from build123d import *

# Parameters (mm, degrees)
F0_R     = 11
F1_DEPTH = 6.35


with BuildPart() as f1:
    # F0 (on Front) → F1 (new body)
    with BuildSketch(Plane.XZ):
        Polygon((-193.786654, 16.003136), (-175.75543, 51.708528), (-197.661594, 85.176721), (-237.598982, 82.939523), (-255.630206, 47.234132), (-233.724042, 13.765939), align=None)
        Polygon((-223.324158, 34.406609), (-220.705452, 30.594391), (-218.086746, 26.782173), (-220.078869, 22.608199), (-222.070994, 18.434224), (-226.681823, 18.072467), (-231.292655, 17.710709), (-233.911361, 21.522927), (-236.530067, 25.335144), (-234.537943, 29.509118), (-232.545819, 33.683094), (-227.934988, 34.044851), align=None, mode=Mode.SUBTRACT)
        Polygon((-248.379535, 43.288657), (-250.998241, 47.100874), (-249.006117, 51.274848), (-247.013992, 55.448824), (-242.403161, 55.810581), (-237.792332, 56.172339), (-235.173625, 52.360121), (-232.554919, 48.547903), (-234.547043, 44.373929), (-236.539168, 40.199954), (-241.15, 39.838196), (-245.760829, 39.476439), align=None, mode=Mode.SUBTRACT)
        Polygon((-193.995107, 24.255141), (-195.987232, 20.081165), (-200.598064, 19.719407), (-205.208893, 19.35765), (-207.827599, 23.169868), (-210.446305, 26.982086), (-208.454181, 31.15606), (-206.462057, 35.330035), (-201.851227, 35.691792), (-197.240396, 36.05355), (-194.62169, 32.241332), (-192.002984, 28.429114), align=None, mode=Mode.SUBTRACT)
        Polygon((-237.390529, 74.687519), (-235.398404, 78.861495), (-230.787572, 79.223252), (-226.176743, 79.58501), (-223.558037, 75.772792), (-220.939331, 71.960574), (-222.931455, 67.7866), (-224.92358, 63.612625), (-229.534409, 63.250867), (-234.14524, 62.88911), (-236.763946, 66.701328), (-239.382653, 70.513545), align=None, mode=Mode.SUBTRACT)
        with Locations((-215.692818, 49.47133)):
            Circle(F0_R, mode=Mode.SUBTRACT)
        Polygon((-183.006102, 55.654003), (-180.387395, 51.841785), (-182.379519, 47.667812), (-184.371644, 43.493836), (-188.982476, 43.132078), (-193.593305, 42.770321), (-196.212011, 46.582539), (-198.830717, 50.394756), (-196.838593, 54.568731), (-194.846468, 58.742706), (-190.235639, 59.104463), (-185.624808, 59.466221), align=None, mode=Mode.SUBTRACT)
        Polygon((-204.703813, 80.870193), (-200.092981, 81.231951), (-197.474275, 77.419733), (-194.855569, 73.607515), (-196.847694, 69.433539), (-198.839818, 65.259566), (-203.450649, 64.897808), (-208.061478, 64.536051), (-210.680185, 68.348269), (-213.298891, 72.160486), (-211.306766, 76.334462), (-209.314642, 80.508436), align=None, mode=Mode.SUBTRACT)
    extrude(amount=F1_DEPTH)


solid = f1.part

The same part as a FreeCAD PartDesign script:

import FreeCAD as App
import Part
import Sketcher

V = App.Vector
Q = App.Units.Quantity


def add_polygon(sketch, points):
    """Adds a closed chain of lines whose ends are joined by coincident constraints."""
    first, n = sketch.GeometryCount, len(points)
    for a, b in zip(points, points[1:] + points[:1]):
        sketch.addGeometry(Part.LineSegment(App.Vector(*a, 0), App.Vector(*b, 0)), False)
    for i in range(n):
        sketch.addConstraint(Sketcher.Constraint("Coincident", first + i, 2, first + (i + 1) % n, 1))

doc = App.newDocument("Part")
params = doc.addObject("Spreadsheet::Sheet", "Params")
for row, (alias, value) in enumerate([
    ("sketch1_diameter", "22 mm"),
    ("sketch1_length", "40.000001 mm"),
    ("sketch1_length2", "9.25 mm"),
    ("pad1_length", "6.35 mm"),
], start=1):
    params.set(f"A{row}", alias)
    params.set(f"B{row}", "=" + value)
    params.setAlias(f"B{row}", alias)

body = doc.addObject("PartDesign::Body", "Body")

# Sketch on XZ plane
sketch1 = body.newObject("Sketcher::SketchObject", "Sketch")
sketch1.AttachmentSupport = (doc.getObject("XZ_Plane"), [""])
sketch1.MapMode = "FlatFace"
add_polygon(sketch1, [(-193.8, 16), (-175.8, 51.7), (-197.7, 85.2), (-237.6, 82.9), (-255.6, 47.2), (-233.7, 13.8)])  # lines 0-5
add_polygon(sketch1, [(-227.9, 34), (-223.3, 34.4), (-218.1, 26.8), (-220.1, 22.6), (-222.1, 18.4), (-226.7, 18.1), (-231.3, 17.7), (-233.9, 21.5), (-236.5, 25.3), (-234.5, 29.5), (-232.5, 33.7)])  # lines 6-16
add_polygon(sketch1, [(-245.8, 39.5), (-248.4, 43.3), (-251, 47.1), (-249, 51.3), (-247, 55.4), (-242.4, 55.8), (-237.8, 56.2), (-235.2, 52.4), (-232.6, 48.5), (-234.5, 44.4), (-236.5, 40.2), (-241.2, 39.8)])  # lines 17-28
add_polygon(sketch1, [(-192, 28.4), (-194, 24.3), (-196, 20.1), (-200.6, 19.7), (-205.2, 19.4), (-210.4, 27), (-208.5, 31.2), (-206.5, 35.3), (-201.9, 35.7), (-197.2, 36.1)])  # lines 29-38
add_polygon(sketch1, [(-239.4, 70.5), (-237.4, 74.7), (-235.4, 78.9), (-230.8, 79.2), (-226.2, 79.6), (-220.9, 72), (-222.9, 67.8), (-224.9, 63.6), (-229.5, 63.3), (-234.1, 62.9), (-236.8, 66.7)])  # lines 39-49
sketch1.addGeometry(Part.Circle(V(-215.7, 49.5, 0), V(0, 0, 1), 11), False)  # 50
add_polygon(sketch1, [(-185.6, 59.5), (-183, 55.7), (-180.4, 51.8), (-182.4, 47.7), (-184.4, 43.5), (-189, 43.1), (-193.6, 42.8), (-196.2, 46.6), (-198.8, 50.4), (-196.8, 54.6), (-194.8, 58.7), (-190.2, 59.1)])  # lines 51-62
add_polygon(sketch1, [(-209.3, 80.5), (-204.7, 80.9), (-200.1, 81.2), (-194.9, 73.6), (-196.8, 69.4), (-198.8, 65.3), (-203.5, 64.9), (-208.1, 64.5), (-210.7, 68.3), (-213.3, 72.2), (-211.3, 76.3)])  # lines 63-73
sketch1.addConstraint(Sketcher.Constraint("Parallel", 0, 3))
sketch1.addConstraint(Sketcher.Constraint("Parallel", 1, 4))
sketch1.addConstraint(Sketcher.Constraint("Parallel", 2, 5))
sketch1.addConstraint(Sketcher.Constraint("Parallel", 8, 9))
sketch1.addConstraint(Sketcher.Constraint("Parallel", 6, 10))
sketch1.addConstraint(Sketcher.Constraint("Parallel", 10, 11))
sketch1.addConstraint(Sketcher.Constraint("Parallel", 7, 12))
sketch1.addConstraint(Sketcher.Constraint("Parallel", 12, 13))
sketch1.addConstraint(Sketcher.Constraint("Parallel", 9, 14))
sketch1.addConstraint(Sketcher.Constraint("Parallel", 14, 15))
sketch1.addConstraint(Sketcher.Constraint("Parallel", 11, 16))
sketch1.addConstraint(Sketcher.Constraint("Parallel", 13, 17))
sketch1.addConstraint(Sketcher.Constraint("Parallel", 17, 18))
sketch1.addConstraint(Sketcher.Constraint("Parallel", 15, 19))
sketch1.addConstraint(Sketcher.Constraint("Parallel", 19, 20))
sketch1.addConstraint(Sketcher.Constraint("Parallel", 16, 21))
sketch1.addConstraint(Sketcher.Constraint("Parallel", 21, 22))
sketch1.addConstraint(Sketcher.Constraint("Parallel", 18, 23))
sketch1.addConstraint(Sketcher.Constraint("Parallel", 23, 24))
sketch1.addConstraint(Sketcher.Constraint("Parallel", 20, 25))
sketch1.addConstraint(Sketcher.Constraint("Parallel", 25, 26))
sketch1.addConstraint(Sketcher.Constraint("Parallel", 22, 27))
sketch1.addConstraint(Sketcher.Constraint("Parallel", 27, 28))
sketch1.addConstraint(Sketcher.Constraint("Parallel", 26, 29))
sketch1.addConstraint(Sketcher.Constraint("Parallel", 29, 30))
sketch1.addConstraint(Sketcher.Constraint("Parallel", 28, 31))
sketch1.addConstraint(Sketcher.Constraint("Parallel", 31, 32))
sketch1.addConstraint(Sketcher.Constraint("Parallel", 24, 33))
sketch1.addConstraint(Sketcher.Constraint("Parallel", 30, 34))
sketch1.addConstraint(Sketcher.Constraint("Parallel", 34, 35))
sketch1.addConstraint(Sketcher.Constraint("Parallel", 32, 36))
sketch1.addConstraint(Sketcher.Constraint("Parallel", 36, 37))
sketch1.addConstraint(Sketcher.Constraint("Parallel", 33, 38))
sketch1.addConstraint(Sketcher.Constraint("Parallel", 35, 39))
sketch1.addConstraint(Sketcher.Constraint("Parallel", 39, 40))
sketch1.addConstraint(Sketcher.Constraint("Parallel", 37, 41))
sketch1.addConstraint(Sketcher.Constraint("Parallel", 41, 42))
sketch1.addConstraint(Sketcher.Constraint("Parallel", 38, 43))
sketch1.addConstraint(Sketcher.Constraint("Parallel", 40, 44))
sketch1.addConstraint(Sketcher.Constraint("Parallel", 44, 45))
sketch1.addConstraint(Sketcher.Constraint("Parallel", 42, 46))
sketch1.addConstraint(Sketcher.Constraint("Parallel", 46, 47))
sketch1.addConstraint(Sketcher.Constraint("Parallel", 43, 48))
sketch1.addConstraint(Sketcher.Constraint("Parallel", 48, 49))
sketch1.addConstraint(Sketcher.Constraint("Parallel", 49, 51))
sketch1.addConstraint(Sketcher.Constraint("Parallel", 51, 52))
sketch1.addConstraint(Sketcher.Constraint("Parallel", 45, 53))
sketch1.addConstraint(Sketcher.Constraint("Parallel", 53, 54))
sketch1.addConstraint(Sketcher.Constraint("Parallel", 47, 55))
sketch1.addConstraint(Sketcher.Constraint("Parallel", 55, 56))
sketch1.addConstraint(Sketcher.Constraint("Parallel", 52, 57))
sketch1.addConstraint(Sketcher.Constraint("Parallel", 57, 58))
sketch1.addConstraint(Sketcher.Constraint("Parallel", 54, 59))
sketch1.addConstraint(Sketcher.Constraint("Parallel", 59, 60))
sketch1.addConstraint(Sketcher.Constraint("Parallel", 56, 61))
sketch1.addConstraint(Sketcher.Constraint("Parallel", 61, 62))
sketch1.addConstraint(Sketcher.Constraint("Parallel", 62, 63))
sketch1.addConstraint(Sketcher.Constraint("Parallel", 63, 64))
sketch1.addConstraint(Sketcher.Constraint("Parallel", 58, 65))
sketch1.addConstraint(Sketcher.Constraint("Parallel", 60, 66))
sketch1.addConstraint(Sketcher.Constraint("Parallel", 66, 67))
sketch1.addConstraint(Sketcher.Constraint("Parallel", 64, 68))
sketch1.addConstraint(Sketcher.Constraint("Parallel", 68, 69))
sketch1.addConstraint(Sketcher.Constraint("Parallel", 65, 70))
sketch1.addConstraint(Sketcher.Constraint("Parallel", 70, 71))
sketch1.addConstraint(Sketcher.Constraint("Parallel", 67, 72))
sketch1.addConstraint(Sketcher.Constraint("Parallel", 72, 73))
sketch1.addConstraint(Sketcher.Constraint("Equal", 0, 1))
sketch1.addConstraint(Sketcher.Constraint("Equal", 1, 2))
sketch1.addConstraint(Sketcher.Constraint("Equal", 2, 3))
sketch1.addConstraint(Sketcher.Constraint("Equal", 6, 8))
sketch1.addConstraint(Sketcher.Constraint("Equal", 8, 9))
sketch1.addConstraint(Sketcher.Constraint("Equal", 9, 10))
sketch1.addConstraint(Sketcher.Constraint("Equal", 9, 11))
sketch1.addConstraint(Sketcher.Constraint("Equal", 11, 12))
sketch1.addConstraint(Sketcher.Constraint("Equal", 12, 13))
sketch1.addConstraint(Sketcher.Constraint("Equal", 13, 14))
sketch1.addConstraint(Sketcher.Constraint("Equal", 14, 15))
sketch1.addConstraint(Sketcher.Constraint("Equal", 16, 17))
sketch1.addConstraint(Sketcher.Constraint("Equal", 17, 18))
sketch1.addConstraint(Sketcher.Constraint("Equal", 18, 19))
sketch1.addConstraint(Sketcher.Constraint("Equal", 18, 20))
sketch1.addConstraint(Sketcher.Constraint("Equal", 20, 21))
sketch1.addConstraint(Sketcher.Constraint("Equal", 21, 22))
sketch1.addConstraint(Sketcher.Constraint("Equal", 21, 23))
sketch1.addConstraint(Sketcher.Constraint("Equal", 23, 24))
sketch1.addConstraint(Sketcher.Constraint("Equal", 24, 25))
sketch1.addConstraint(Sketcher.Constraint("Equal", 26, 27))
sketch1.addConstraint(Sketcher.Constraint("Equal", 28, 29))
sketch1.addConstraint(Sketcher.Constraint("Equal", 27, 30))
sketch1.addConstraint(Sketcher.Constraint("Equal", 30, 31))
sketch1.addConstraint(Sketcher.Constraint("Equal", 29, 32))
sketch1.addConstraint(Sketcher.Constraint("Equal", 7, 33))
sketch1.addConstraint(Sketcher.Constraint("Equal", 32, 34))
sketch1.addConstraint(Sketcher.Constraint("Equal", 34, 35))
sketch1.addConstraint(Sketcher.Constraint("Equal", 35, 36))
sketch1.addConstraint(Sketcher.Constraint("Equal", 37, 39))
sketch1.addConstraint(Sketcher.Constraint("Equal", 37, 40))
sketch1.addConstraint(Sketcher.Constraint("Equal", 40, 41))
sketch1.addConstraint(Sketcher.Constraint("Equal", 39, 42))
sketch1.addConstraint(Sketcher.Constraint("Equal", 38, 43))
sketch1.addConstraint(Sketcher.Constraint("Equal", 42, 44))
sketch1.addConstraint(Sketcher.Constraint("Equal", 44, 45))
sketch1.addConstraint(Sketcher.Constraint("Equal", 45, 46))
sketch1.addConstraint(Sketcher.Constraint("Equal", 47, 48))
sketch1.addConstraint(Sketcher.Constraint("Equal", 49, 51))
sketch1.addConstraint(Sketcher.Constraint("Equal", 51, 52))
sketch1.addConstraint(Sketcher.Constraint("Equal", 49, 53))
sketch1.addConstraint(Sketcher.Constraint("Equal", 52, 54))
sketch1.addConstraint(Sketcher.Constraint("Equal", 54, 55))
sketch1.addConstraint(Sketcher.Constraint("Equal", 53, 56))
sketch1.addConstraint(Sketcher.Constraint("Equal", 56, 57))
sketch1.addConstraint(Sketcher.Constraint("Equal", 57, 58))
sketch1.addConstraint(Sketcher.Constraint("Equal", 58, 59))
sketch1.addConstraint(Sketcher.Constraint("Equal", 60, 61))
sketch1.addConstraint(Sketcher.Constraint("Equal", 61, 63))
sketch1.addConstraint(Sketcher.Constraint("Equal", 62, 64))
sketch1.addConstraint(Sketcher.Constraint("Equal", 43, 65))
sketch1.addConstraint(Sketcher.Constraint("Equal", 64, 66))
sketch1.addConstraint(Sketcher.Constraint("Equal", 63, 67))
sketch1.addConstraint(Sketcher.Constraint("Equal", 66, 68))
sketch1.addConstraint(Sketcher.Constraint("Equal", 67, 69))
sketch1.addConstraint(Sketcher.Constraint("Equal", 68, 70))
sketch1.addConstraint(Sketcher.Constraint("Equal", 71, 72))
sketch1.addConstraint(Sketcher.Constraint("Diameter", 50, Q("22 mm")))
sketch1.addConstraint(Sketcher.Constraint("Distance", 0, Q("40.000001 mm")))
sketch1.addConstraint(Sketcher.Constraint("Distance", 7, Q("9.25 mm")))
sketch1.addConstraint(Sketcher.Constraint("DistanceX", 27, 2, -1, 1, Q("241.15 mm")))
sketch1.addConstraint(Sketcher.Constraint("DistanceY", -1, 1, 8, 2, Q("22.608199 mm")))
sketch1.addConstraint(Sketcher.Constraint("DistanceY", -1, 1, 44, 2, Q("67.7866 mm")))
sketch1.addConstraint(Sketcher.Constraint("DistanceX", 51, 2, -1, 1, Q("183.006102 mm")))
sketch1.addConstraint(Sketcher.Constraint("DistanceY", -1, 1, 50, 3, Q("49.47133 mm")))
sketch1.addConstraint(Sketcher.Constraint("DistanceX", 0, 2, -1, 1, Q("175.75543 mm")))
sketch1.addConstraint(Sketcher.Constraint("DistanceY", -1, 1, 1, 2, Q("85.176721 mm")))
sketch1.addConstraint(Sketcher.Constraint("DistanceX", 2, 2, -1, 1, Q("237.598982 mm")))
sketch1.addConstraint(Sketcher.Constraint("DistanceX", 4, 2, -1, 1, Q("233.724042 mm")))
sketch1.addConstraint(Sketcher.Constraint("DistanceY", -1, 1, 4, 2, Q("13.765939 mm")))
sketch1.addConstraint(Sketcher.Constraint("DistanceX", 6, 2, -1, 1, Q("223.324158 mm")))
sketch1.addConstraint(Sketcher.Constraint("DistanceY", -1, 1, 6, 2, Q("34.406609 mm")))
sketch1.addConstraint(Sketcher.Constraint("DistanceX", 8, 2, -1, 1, Q("220.078869 mm")))
sketch1.addConstraint(Sketcher.Constraint("DistanceY", -1, 1, 11, 2, Q("17.710709 mm")))
sketch1.addConstraint(Sketcher.Constraint("DistanceY", -1, 1, 21, 2, Q("55.810581 mm")))
sketch1.addConstraint(Sketcher.Constraint("DistanceY", -1, 1, 29, 2, Q("24.255141 mm")))
sketch1.addConstraint(Sketcher.Constraint("DistanceX", 30, 2, -1, 1, Q("195.987232 mm")))
sketch1.addConstraint(Sketcher.Constraint("DistanceX", 39, 2, -1, 1, Q("237.390529 mm")))
sketch1.addConstraint(Sketcher.Constraint("DistanceY", -1, 1, 53, 2, Q("47.667812 mm")))
sketch1.addConstraint(Sketcher.Constraint("DistanceX", 64, 2, -1, 1, Q("200.092981 mm")))
sketch1.addConstraint(Sketcher.Constraint("DistanceY", -1, 1, 64, 2, Q("81.231951 mm")))
sketch1.addConstraint(Sketcher.Constraint("DistanceX", 50, 3, -1, 1, Q("215.692818 mm")))
sketch1.setExpression("Constraints[197]", "Params.sketch1_diameter")
sketch1.setExpression("Constraints[198]", "Params.sketch1_length")
sketch1.setExpression("Constraints[199]", "Params.sketch1_length2")
pad1 = body.newObject("PartDesign::Pad", "Pad")
pad1.Profile = sketch1
pad1.setExpression("Length", "Params.pad1_length")

doc.recompute()
